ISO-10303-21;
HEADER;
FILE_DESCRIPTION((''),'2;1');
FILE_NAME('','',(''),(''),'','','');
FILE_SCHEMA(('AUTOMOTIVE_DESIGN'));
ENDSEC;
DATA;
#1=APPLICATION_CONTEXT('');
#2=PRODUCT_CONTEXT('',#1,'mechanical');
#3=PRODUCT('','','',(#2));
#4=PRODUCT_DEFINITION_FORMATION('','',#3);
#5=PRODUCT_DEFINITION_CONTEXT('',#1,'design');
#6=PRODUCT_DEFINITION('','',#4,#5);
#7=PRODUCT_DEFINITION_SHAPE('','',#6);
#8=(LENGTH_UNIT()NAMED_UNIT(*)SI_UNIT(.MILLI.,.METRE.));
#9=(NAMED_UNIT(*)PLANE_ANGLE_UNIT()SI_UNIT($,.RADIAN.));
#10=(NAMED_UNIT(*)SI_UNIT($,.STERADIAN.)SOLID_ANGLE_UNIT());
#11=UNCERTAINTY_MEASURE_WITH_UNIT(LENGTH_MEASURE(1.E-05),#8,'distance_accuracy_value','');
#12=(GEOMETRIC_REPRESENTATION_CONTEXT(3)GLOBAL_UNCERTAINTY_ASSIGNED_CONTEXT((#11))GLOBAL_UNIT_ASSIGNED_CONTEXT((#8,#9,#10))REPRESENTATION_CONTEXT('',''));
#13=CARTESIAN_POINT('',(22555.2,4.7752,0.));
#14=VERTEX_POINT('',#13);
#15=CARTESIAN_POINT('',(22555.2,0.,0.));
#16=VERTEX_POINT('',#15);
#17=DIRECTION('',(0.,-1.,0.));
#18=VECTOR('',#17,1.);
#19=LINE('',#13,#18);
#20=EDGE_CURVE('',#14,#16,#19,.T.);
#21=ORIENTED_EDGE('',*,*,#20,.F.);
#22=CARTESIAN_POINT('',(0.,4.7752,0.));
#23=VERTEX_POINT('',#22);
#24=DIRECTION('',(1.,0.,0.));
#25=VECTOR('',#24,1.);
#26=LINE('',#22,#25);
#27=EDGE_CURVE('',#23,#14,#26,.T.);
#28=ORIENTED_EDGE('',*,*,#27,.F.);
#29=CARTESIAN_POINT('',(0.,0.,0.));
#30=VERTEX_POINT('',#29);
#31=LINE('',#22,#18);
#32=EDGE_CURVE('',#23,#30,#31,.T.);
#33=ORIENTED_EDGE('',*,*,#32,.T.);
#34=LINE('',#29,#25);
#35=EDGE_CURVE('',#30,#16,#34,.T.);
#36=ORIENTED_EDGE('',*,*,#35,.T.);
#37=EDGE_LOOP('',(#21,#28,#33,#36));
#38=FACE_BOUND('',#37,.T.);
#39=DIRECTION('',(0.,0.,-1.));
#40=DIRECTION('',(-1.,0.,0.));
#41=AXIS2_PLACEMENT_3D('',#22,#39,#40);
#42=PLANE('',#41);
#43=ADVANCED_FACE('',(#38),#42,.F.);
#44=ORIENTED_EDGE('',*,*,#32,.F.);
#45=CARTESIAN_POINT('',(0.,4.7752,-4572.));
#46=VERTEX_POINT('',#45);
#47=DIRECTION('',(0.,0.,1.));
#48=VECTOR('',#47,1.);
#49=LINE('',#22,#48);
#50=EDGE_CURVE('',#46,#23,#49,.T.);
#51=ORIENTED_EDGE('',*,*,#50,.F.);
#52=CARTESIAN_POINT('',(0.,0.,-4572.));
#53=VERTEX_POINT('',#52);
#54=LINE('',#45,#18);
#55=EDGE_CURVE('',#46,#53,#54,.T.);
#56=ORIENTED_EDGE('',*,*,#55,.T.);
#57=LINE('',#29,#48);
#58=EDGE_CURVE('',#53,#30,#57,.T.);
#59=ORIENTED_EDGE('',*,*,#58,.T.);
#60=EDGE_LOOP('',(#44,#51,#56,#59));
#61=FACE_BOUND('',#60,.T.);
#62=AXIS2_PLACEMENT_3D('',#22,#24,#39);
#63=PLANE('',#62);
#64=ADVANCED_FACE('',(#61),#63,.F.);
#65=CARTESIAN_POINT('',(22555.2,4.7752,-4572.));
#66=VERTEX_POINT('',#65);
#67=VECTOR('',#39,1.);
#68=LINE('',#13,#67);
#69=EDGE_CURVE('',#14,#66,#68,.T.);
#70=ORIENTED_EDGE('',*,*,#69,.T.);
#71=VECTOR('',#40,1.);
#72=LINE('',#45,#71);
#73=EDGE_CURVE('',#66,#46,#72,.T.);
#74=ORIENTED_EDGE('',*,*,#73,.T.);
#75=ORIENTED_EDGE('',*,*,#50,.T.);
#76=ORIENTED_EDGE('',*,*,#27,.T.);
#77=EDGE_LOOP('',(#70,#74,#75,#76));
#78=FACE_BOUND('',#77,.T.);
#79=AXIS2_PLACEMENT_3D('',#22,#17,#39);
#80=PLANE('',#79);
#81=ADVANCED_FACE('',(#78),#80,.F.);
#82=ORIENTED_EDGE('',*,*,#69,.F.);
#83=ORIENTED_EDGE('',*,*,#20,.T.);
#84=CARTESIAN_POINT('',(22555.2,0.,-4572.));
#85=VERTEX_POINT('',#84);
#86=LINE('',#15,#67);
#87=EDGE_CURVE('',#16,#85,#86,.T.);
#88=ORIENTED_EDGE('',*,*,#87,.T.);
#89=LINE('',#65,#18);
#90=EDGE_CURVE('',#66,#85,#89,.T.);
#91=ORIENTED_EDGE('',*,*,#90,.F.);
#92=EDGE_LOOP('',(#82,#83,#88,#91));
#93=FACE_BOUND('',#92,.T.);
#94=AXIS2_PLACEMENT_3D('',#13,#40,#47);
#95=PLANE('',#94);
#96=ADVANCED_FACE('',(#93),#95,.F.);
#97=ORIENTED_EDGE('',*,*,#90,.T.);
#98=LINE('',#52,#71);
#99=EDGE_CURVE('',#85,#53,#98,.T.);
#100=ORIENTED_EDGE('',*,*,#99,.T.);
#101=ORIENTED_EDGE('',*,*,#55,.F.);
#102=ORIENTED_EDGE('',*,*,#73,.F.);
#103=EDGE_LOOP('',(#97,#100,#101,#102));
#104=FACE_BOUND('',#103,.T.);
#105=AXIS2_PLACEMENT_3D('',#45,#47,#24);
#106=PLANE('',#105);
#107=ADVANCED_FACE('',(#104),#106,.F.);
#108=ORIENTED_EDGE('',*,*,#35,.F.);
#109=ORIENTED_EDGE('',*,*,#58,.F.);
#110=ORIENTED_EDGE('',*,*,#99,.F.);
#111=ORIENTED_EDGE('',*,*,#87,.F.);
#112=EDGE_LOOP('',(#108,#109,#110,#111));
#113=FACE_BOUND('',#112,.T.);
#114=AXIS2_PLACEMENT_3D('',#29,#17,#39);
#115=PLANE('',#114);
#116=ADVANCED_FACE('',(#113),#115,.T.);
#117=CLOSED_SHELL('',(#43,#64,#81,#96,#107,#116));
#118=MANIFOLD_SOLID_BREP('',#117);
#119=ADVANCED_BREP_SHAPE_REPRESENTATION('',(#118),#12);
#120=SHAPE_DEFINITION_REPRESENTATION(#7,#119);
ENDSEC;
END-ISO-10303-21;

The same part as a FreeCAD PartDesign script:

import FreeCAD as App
import Part
import Sketcher

V = App.Vector
Q = App.Units.Quantity

doc = App.newDocument("Part")
params = doc.addObject("Spreadsheet::Sheet", "Params")
for row, (alias, value) in enumerate([
    ("sketch1_width", "888 in"),
    ("sketch1_height", "180 in"),
    ("pad1_length", "0.188 in"),
], start=1):
    params.set(f"A{row}", alias)
    params.set(f"B{row}", "=" + value)
    params.setAlias(f"B{row}", alias)

body = doc.addObject("PartDesign::Body", "Body")

sketch1 = body.newObject("Sketcher::SketchObject", "Sketch")
sketch1.AttachmentSupport = (doc.getObject("XZ_Plane"), [""])
sketch1.MapMode = "FlatFace"
sketch1.addGeometry([
    Part.LineSegment(V(0, -4572, 0), V(0, 0, 0)),
    Part.LineSegment(V(0, 0, 0), V(22555, 0, 0)),
    Part.LineSegment(V(22555, 0, 0), V(22555, -4572, 0)),
    Part.LineSegment(V(22555, -4572, 0), V(0, -4572, 0)),
], False)
sketch1.addConstraint([
    Sketcher.Constraint("Coincident", 0, 2, 1, 1),
    Sketcher.Constraint("Coincident", 1, 2, 2, 1),
    Sketcher.Constraint("Coincident", 2, 2, 3, 1),
    Sketcher.Constraint("Coincident", 3, 2, 0, 1),
    Sketcher.Constraint("Vertical", 0),
    Sketcher.Constraint("Horizontal", 1),
    Sketcher.Constraint("Vertical", 2),
    Sketcher.Constraint("Horizontal", 3),
    Sketcher.Constraint("Coincident", 0, 2, -1, 1),
    Sketcher.Constraint("DistanceX", 1, 1, 1, 2, Q("888 in")),
    Sketcher.Constraint("DistanceY", 0, 1, 0, 2, Q("180 in")),
])
sketch1.setExpression("Constraints[9]", "Params.sketch1_width")
sketch1.setExpression("Constraints[10]", "Params.sketch1_height")
pad1 = body.newObject("PartDesign::Pad", "Pad")
pad1.Profile = sketch1
pad1.setExpression("Length", "Params.pad1_length")
pad1.Reversed = True

doc.recompute()
